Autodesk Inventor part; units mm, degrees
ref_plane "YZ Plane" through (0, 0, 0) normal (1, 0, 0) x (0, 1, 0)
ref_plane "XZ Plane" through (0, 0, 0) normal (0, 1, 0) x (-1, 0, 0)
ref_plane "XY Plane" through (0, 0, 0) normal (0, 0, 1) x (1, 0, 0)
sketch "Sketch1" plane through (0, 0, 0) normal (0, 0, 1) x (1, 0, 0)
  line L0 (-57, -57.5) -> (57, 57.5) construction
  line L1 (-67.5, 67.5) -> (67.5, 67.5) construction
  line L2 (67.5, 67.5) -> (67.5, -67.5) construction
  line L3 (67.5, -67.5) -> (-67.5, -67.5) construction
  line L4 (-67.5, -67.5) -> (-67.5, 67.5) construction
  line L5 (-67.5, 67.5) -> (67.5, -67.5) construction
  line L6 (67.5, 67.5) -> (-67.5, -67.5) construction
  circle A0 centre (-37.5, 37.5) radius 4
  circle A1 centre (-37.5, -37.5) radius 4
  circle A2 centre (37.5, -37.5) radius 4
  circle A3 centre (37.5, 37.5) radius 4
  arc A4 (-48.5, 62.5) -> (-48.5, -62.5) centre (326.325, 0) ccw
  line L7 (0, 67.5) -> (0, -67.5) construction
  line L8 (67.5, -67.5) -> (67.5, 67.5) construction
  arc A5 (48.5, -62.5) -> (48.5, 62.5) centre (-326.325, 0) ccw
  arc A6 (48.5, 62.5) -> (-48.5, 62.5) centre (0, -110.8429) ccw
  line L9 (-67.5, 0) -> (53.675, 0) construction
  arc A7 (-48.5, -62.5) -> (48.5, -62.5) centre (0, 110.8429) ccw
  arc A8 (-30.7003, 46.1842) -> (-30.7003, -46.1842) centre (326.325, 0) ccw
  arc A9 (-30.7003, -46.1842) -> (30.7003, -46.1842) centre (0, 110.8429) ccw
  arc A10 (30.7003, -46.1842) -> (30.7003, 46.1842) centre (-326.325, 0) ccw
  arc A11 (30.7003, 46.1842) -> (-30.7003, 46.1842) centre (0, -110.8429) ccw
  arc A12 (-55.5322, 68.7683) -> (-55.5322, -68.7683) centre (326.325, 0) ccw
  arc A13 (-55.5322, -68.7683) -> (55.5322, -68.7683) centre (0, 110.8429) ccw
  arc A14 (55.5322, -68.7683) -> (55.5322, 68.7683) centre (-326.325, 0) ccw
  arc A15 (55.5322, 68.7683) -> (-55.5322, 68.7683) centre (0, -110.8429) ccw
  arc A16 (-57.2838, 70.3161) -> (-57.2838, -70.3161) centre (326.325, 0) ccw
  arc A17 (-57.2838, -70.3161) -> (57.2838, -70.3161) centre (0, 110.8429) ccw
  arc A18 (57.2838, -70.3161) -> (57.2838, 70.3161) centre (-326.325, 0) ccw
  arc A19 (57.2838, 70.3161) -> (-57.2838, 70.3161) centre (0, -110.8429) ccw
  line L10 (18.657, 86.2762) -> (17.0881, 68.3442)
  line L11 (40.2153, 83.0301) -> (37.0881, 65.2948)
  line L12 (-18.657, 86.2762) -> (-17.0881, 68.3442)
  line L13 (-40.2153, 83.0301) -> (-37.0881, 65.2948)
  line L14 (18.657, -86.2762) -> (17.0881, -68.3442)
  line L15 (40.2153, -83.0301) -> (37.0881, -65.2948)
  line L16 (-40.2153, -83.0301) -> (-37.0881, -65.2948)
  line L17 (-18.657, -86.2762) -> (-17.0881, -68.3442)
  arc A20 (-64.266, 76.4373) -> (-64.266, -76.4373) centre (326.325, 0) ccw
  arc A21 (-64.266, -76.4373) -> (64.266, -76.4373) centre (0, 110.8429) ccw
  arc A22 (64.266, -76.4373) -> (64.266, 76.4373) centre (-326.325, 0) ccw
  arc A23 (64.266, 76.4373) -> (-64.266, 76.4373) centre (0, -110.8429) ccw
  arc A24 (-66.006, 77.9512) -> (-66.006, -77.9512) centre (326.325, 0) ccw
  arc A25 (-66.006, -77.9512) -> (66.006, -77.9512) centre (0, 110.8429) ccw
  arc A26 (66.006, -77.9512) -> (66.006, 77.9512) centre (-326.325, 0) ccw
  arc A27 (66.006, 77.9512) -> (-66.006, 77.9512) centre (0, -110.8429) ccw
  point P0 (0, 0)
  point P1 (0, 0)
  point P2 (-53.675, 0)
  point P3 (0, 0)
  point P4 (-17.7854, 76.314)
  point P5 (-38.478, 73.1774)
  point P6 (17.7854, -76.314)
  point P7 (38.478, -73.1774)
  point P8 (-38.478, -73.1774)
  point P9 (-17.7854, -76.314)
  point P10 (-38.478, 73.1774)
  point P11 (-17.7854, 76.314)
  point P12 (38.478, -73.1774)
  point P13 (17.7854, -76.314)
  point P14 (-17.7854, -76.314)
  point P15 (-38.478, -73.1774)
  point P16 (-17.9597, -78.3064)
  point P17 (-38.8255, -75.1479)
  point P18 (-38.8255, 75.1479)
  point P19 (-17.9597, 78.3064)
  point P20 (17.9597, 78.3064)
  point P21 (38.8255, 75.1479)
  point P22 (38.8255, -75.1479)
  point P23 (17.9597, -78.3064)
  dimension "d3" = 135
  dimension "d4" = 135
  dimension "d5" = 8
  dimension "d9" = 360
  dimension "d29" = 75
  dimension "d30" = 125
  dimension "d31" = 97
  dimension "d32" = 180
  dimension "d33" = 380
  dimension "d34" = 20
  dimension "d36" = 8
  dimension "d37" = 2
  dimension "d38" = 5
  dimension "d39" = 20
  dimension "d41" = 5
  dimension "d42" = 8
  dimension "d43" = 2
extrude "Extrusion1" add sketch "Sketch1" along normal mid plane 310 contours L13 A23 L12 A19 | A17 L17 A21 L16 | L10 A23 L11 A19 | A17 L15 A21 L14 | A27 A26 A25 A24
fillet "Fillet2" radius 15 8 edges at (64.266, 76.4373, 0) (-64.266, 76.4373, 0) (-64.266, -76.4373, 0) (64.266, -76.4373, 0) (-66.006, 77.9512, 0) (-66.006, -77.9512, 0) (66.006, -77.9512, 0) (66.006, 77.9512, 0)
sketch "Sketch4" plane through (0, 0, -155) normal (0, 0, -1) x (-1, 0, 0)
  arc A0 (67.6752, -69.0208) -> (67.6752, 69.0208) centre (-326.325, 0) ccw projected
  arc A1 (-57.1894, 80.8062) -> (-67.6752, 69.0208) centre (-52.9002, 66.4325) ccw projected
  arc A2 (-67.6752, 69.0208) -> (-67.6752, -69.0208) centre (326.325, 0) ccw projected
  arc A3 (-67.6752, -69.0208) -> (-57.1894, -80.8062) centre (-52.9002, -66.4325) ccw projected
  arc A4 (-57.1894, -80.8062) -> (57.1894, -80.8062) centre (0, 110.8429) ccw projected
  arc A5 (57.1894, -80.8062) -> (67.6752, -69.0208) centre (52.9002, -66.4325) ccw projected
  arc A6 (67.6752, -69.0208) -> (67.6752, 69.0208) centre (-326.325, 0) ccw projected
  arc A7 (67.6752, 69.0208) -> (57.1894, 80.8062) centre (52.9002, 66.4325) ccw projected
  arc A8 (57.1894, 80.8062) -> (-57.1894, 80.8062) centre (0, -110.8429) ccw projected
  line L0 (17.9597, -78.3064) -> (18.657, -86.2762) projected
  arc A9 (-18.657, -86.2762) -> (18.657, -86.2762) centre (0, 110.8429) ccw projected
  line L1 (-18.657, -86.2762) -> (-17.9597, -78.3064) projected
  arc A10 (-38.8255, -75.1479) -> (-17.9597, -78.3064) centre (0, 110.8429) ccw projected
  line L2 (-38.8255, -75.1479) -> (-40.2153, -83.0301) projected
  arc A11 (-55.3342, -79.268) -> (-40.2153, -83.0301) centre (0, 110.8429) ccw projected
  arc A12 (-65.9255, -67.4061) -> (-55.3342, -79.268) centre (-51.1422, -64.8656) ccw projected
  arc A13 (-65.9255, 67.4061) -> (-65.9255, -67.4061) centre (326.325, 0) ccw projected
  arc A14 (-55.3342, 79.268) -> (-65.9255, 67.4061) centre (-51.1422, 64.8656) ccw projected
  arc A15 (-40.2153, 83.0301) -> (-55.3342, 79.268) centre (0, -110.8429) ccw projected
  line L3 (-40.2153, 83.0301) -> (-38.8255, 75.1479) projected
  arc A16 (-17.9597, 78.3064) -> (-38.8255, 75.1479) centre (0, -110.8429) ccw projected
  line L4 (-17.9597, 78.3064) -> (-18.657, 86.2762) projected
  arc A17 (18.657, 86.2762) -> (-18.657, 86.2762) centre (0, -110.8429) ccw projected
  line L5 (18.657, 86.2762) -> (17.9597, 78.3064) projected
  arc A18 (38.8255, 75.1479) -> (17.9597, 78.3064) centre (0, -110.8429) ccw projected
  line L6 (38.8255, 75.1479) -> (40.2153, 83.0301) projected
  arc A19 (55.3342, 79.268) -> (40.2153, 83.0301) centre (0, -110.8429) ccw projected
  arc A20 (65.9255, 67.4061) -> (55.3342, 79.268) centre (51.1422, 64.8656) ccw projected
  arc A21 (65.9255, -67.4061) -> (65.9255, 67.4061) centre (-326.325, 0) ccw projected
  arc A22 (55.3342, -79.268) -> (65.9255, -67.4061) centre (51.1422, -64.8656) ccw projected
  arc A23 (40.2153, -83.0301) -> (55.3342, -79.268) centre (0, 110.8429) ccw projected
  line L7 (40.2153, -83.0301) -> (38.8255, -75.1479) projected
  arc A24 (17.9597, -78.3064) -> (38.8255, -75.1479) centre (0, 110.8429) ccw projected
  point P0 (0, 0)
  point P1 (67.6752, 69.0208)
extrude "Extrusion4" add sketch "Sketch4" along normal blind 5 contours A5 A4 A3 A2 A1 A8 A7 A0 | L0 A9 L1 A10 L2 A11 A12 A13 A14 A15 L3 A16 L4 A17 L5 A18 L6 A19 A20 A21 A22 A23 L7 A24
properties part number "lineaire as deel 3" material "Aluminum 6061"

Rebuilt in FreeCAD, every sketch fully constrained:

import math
import FreeCAD as App
import Part
import Sketcher

V = App.Vector
Q = App.Units.Quantity


def edges_at(feature, points):
    """Names of the edges that pass closest to the given points."""
    edges = feature.Shape.Edges
    near = lambda p: min(range(len(edges)), key=lambda i: edges[i].distToShape(Part.Vertex(*p))[0])
    return sorted({f"Edge{near(p) + 1}" for p in points})

doc = App.newDocument("Part")
body = doc.addObject("PartDesign::Body", "Body")

sketch1 = doc.addObject("Sketcher::SketchObject", "Sketch")
body.addObject(sketch1)
sketch1.AttachmentSupport = (doc.XY_Plane, [""])
sketch1.MapMode = "FlatFace"
sketch1.addGeometry([
    Part.ArcOfCircle(Part.Circle(V(0, -111, 0), V(0, 0, 1), 200), math.radians(71), math.radians(109)),
    Part.ArcOfCircle(Part.Circle(V(326, 0, 0), V(0, 0, 1), 400), math.radians(169), math.radians(191)),
    Part.ArcOfCircle(Part.Circle(V(0, 111, 0), V(0, 0, 1), 200), math.radians(-109), math.radians(-71)),
    Part.ArcOfCircle(Part.Circle(V(-326, 0, 0), V(0, 0, 1), 400), math.radians(-11), math.radians(11)),
    Part.LineSegment(V(-40, 83, 0), V(-39, 75, 0)),
    Part.ArcOfCircle(Part.Circle(V(0, -111, 0), V(0, 0, 1), 190), math.radians(95.42), math.radians(101.79)),
    Part.LineSegment(V(-18, 78, 0), V(-19, 86, 0)),
    Part.ArcOfCircle(Part.Circle(V(0, -111, 0), V(0, 0, 1), 198), math.radians(84.59), math.radians(95.41)),
    Part.LineSegment(V(19, 86, 0), V(18, 78, 0)),
    Part.ArcOfCircle(Part.Circle(V(0, -111, 0), V(0, 0, 1), 190), math.radians(78.21), math.radians(84.58)),
    Part.LineSegment(V(39, 75, 0), V(40, 83, 0)),
    Part.ArcOfCircle(Part.Circle(V(0, -111, 0), V(0, 0, 1), 198), math.radians(71.06), math.radians(78.28)),
    Part.ArcOfCircle(Part.Circle(V(-326, 0, 0), V(0, 0, 1), 398), math.radians(-11), math.radians(11)),
    Part.ArcOfCircle(Part.Circle(V(0, 111, 0), V(0, 0, 1), 198), math.radians(-78.28), math.radians(-71.06)),
    Part.LineSegment(V(40, -83, 0), V(39, -75, 0)),
    Part.ArcOfCircle(Part.Circle(V(0, 111, 0), V(0, 0, 1), 190), math.radians(-84.58), math.radians(-78.21)),
    Part.LineSegment(V(18, -78, 0), V(19, -86, 0)),
    Part.ArcOfCircle(Part.Circle(V(0, 111, 0), V(0, 0, 1), 198), math.radians(-95.41), math.radians(-84.59)),
    Part.LineSegment(V(-19, -86, 0), V(-18, -78, 0)),
    Part.ArcOfCircle(Part.Circle(V(0, 111, 0), V(0, 0, 1), 190), math.radians(-101.79), math.radians(-95.42)),
    Part.LineSegment(V(-39, -75, 0), V(-40, -83, 0)),
    Part.ArcOfCircle(Part.Circle(V(0, 111, 0), V(0, 0, 1), 198), math.radians(-108.94), math.radians(-101.72)),
    Part.ArcOfCircle(Part.Circle(V(326, 0, 0), V(0, 0, 1), 398), math.radians(169), math.radians(191)),
    Part.ArcOfCircle(Part.Circle(V(0, -111, 0), V(0, 0, 1), 198), math.radians(101.72), math.radians(108.94)),
], False)
sketch1.addConstraint([
    Sketcher.Constraint("Coincident", 0, 2, 1, 1),
    Sketcher.Constraint("Coincident", 1, 2, 2, 1),
    Sketcher.Constraint("Coincident", 2, 2, 3, 1),
    Sketcher.Constraint("Coincident", 3, 2, 0, 1),
    Sketcher.Constraint("Coincident", 4, 2, 5, 2),
    Sketcher.Constraint("Coincident", 5, 1, 6, 1),
    Sketcher.Constraint("Coincident", 6, 2, 7, 2),
    Sketcher.Constraint("Coincident", 7, 1, 8, 1),
    Sketcher.Constraint("Coincident", 8, 2, 9, 2),
    Sketcher.Constraint("Coincident", 9, 1, 10, 1),
    Sketcher.Constraint("Coincident", 10, 2, 11, 2),
    Sketcher.Constraint("Coincident", 11, 1, 12, 2),
    Sketcher.Constraint("Coincident", 12, 1, 13, 2),
    Sketcher.Constraint("Coincident", 13, 1, 14, 1),
    Sketcher.Constraint("Coincident", 14, 2, 15, 2),
    Sketcher.Constraint("Coincident", 15, 1, 16, 1),
    Sketcher.Constraint("Coincident", 16, 2, 17, 2),
    Sketcher.Constraint("Coincident", 17, 1, 18, 1),
    Sketcher.Constraint("Coincident", 18, 2, 19, 2),
    Sketcher.Constraint("Coincident", 19, 1, 20, 1),
    Sketcher.Constraint("Coincident", 20, 2, 21, 2),
    Sketcher.Constraint("Coincident", 21, 1, 22, 2),
    Sketcher.Constraint("Coincident", 22, 1, 23, 2),
    Sketcher.Constraint("Coincident", 23, 1, 4, 1),
    Sketcher.Constraint("Coincident", 5, 3, 0, 3),
    Sketcher.Constraint("Coincident", 7, 3, 0, 3),
    Sketcher.Constraint("Coincident", 9, 3, 0, 3),
    Sketcher.Constraint("Coincident", 11, 3, 0, 3),
    Sketcher.Constraint("Coincident", 12, 3, 3, 3),
    Sketcher.Constraint("Coincident", 13, 3, 2, 3),
    Sketcher.Constraint("Coincident", 15, 3, 2, 3),
    Sketcher.Constraint("Coincident", 17, 3, 2, 3),
    Sketcher.Constraint("Coincident", 19, 3, 2, 3),
    Sketcher.Constraint("Coincident", 21, 3, 2, 3),
    Sketcher.Constraint("Coincident", 22, 3, 1, 3),
    Sketcher.Constraint("Coincident", 23, 3, 0, 3),
    Sketcher.Constraint("Equal", 0, 2),
    Sketcher.Constraint("Equal", 1, 3),
    Sketcher.Constraint("Equal", 5, 9),
    Sketcher.Constraint("Equal", 7, 11),
    Sketcher.Constraint("Equal", 11, 13),
    Sketcher.Constraint("Equal", 9, 15),
    Sketcher.Constraint("Equal", 13, 17),
    Sketcher.Constraint("Equal", 15, 19),
    Sketcher.Constraint("Equal", 17, 21),
    Sketcher.Constraint("Equal", 12, 22),
    Sketcher.Constraint("Equal", 21, 23),
    Sketcher.Constraint("Symmetric", 0, 3, 2, 3, -1, 1),
    Sketcher.Constraint("Symmetric", 1, 3, 3, 3, -1, 1),
    Sketcher.Constraint("Symmetric", 6, 2, 7, 1, -2),
    Sketcher.Constraint("PointOnObject", 1, 3, -1),
    Sketcher.Constraint("Parallel", 4, 14),
    Sketcher.Constraint("Parallel", 6, 16),
    Sketcher.Constraint("Parallel", 8, 18),
    Sketcher.Constraint("Parallel", 10, 20),
    Sketcher.Constraint("Horizontal", 5, 1, 8, 2),
    Sketcher.Constraint("Horizontal", 4, 2, 9, 1),
    Sketcher.Constraint("Horizontal", 16, 2, 17, 1),
    Sketcher.Constraint("Horizontal", 14, 2, 19, 1),
    Sketcher.Constraint("Horizontal", 13, 1, 20, 2),
    Sketcher.Constraint("Vertical", 10, 2, 13, 1),
    Sketcher.Constraint("Vertical", 8, 2, 15, 1),
    Sketcher.Constraint("Radius", 5, Q("190 mm")),
    Sketcher.Constraint("Radius", 0, Q("200 mm")),
    Sketcher.Constraint("Radius", 1, Q("400 mm")),
    Sketcher.Constraint("Radius", 7, Q("198 mm")),
    Sketcher.Constraint("Radius", 12, Q("398 mm")),
    Sketcher.Constraint("Angle", 4, Q("-80 deg")),
    Sketcher.Constraint("Angle", 6, Q("95.0002 deg")),
    Sketcher.Constraint("DistanceY", -1, 1, 10, 2, Q("83.03 mm")),
    Sketcher.Constraint("DistanceX", 3, 3, 1, 3, Q("652.65 mm")),
    Sketcher.Constraint("DistanceY", 0, 3, -1, 1, Q("110.843 mm")),
    Sketcher.Constraint("DistanceX", 6, 2, -1, 1, Q("18.657 mm")),
])
pad1 = doc.addObject("PartDesign::Pad", "Pad")
body.addObject(pad1)
pad1.Profile = sketch1
pad1.Length = 310
pad1.Midplane = True
doc.recompute()

fillet = doc.addObject("PartDesign::Fillet", "Fillet")
body.addObject(fillet)
fillet.Base = (pad1, edges_at(pad1, [
    (64.266, 76.437, 0),
    (-64.266, 76.437, 0),
    (-64.266, -76.437, 0),
    (64.266, -76.437, 0),
    (-66.006, 77.951, 0),
    (-66.006, -77.951, 0),
    (66.006, -77.951, 0),
    (66.006, 77.951, 0),
]))
fillet.Radius = 15

sketch2 = doc.addObject("Sketcher::SketchObject", "Sketch001")
body.addObject(sketch2)
sketch2.AttachmentSupport = (doc.XY_Plane, [""])
sketch2.MapMode = "FlatFace"
sketch2.AttachmentOffset = App.Placement(V(0, 0, -155), App.Rotation())
sketch2.addGeometry([
    Part.ArcOfCircle(Part.Circle(V(-53, -66, 0), V(0, 0, 1), 15), math.radians(-170), math.radians(-107)),
    Part.ArcOfCircle(Part.Circle(V(326, 0, 0), V(0, 0, 1), 400), math.radians(170.06), math.radians(189.94)),
    Part.ArcOfCircle(Part.Circle(V(-53, 66, 0), V(0, 0, 1), 15), math.radians(107), math.radians(170)),
    Part.ArcOfCircle(Part.Circle(V(0, -111, 0), V(0, 0, 1), 200), math.radians(73), math.radians(107)),
    Part.ArcOfCircle(Part.Circle(V(53, 66, 0), V(0, 0, 1), 15), math.radians(10), math.radians(73)),
    Part.ArcOfCircle(Part.Circle(V(-326, 0, 0), V(0, 0, 1), 400), math.radians(-9.94), math.radians(9.94)),
    Part.ArcOfCircle(Part.Circle(V(53, -66, 0), V(0, 0, 1), 15), math.radians(-73), math.radians(-10)),
    Part.ArcOfCircle(Part.Circle(V(0, 111, 0), V(0, 0, 1), 200), math.radians(-107), math.radians(-73)),
], False)
sketch2.addConstraint([
    Sketcher.Constraint("Tangent", 0, 1, 1, 2),
    Sketcher.Constraint("Tangent", 1, 1, 2, 2),
    Sketcher.Constraint("Tangent", 2, 1, 3, 2),
    Sketcher.Constraint("Tangent", 3, 1, 4, 2),
    Sketcher.Constraint("Tangent", 4, 1, 5, 2),
    Sketcher.Constraint("Tangent", 5, 1, 6, 2),
    Sketcher.Constraint("Tangent", 6, 1, 7, 2),
    Sketcher.Constraint("Tangent", 7, 1, 0, 2),
    Sketcher.Constraint("Equal", 0, 2),
    Sketcher.Constraint("Equal", 2, 4),
    Sketcher.Constraint("Equal", 1, 5),
    Sketcher.Constraint("Equal", 4, 6),
    Sketcher.Constraint("Equal", 3, 7),
    Sketcher.Constraint("Symmetric", 0, 3, 4, 3, -1, 1),
    Sketcher.Constraint("Symmetric", 2, 3, 6, 3, -1, 1),
    Sketcher.Constraint("Symmetric", 2, 3, 4, 3, -2),
    Sketcher.Constraint("Radius", 0, Q("15 mm")),
    Sketcher.Constraint("Radius", 1, Q("400 mm")),
    Sketcher.Constraint("Radius", 3, Q("200 mm")),
    Sketcher.Constraint("DistanceX", 5, 3, 1, 3, Q("652.65 mm")),
    Sketcher.Constraint("DistanceY", 3, 3, -1, 1, Q("110.843 mm")),
])
pad2 = doc.addObject("PartDesign::Pad", "Pad001")
body.addObject(pad2)
pad2.Profile = sketch2
pad2.Length = 5
pad2.Reversed = True

doc.recompute()
